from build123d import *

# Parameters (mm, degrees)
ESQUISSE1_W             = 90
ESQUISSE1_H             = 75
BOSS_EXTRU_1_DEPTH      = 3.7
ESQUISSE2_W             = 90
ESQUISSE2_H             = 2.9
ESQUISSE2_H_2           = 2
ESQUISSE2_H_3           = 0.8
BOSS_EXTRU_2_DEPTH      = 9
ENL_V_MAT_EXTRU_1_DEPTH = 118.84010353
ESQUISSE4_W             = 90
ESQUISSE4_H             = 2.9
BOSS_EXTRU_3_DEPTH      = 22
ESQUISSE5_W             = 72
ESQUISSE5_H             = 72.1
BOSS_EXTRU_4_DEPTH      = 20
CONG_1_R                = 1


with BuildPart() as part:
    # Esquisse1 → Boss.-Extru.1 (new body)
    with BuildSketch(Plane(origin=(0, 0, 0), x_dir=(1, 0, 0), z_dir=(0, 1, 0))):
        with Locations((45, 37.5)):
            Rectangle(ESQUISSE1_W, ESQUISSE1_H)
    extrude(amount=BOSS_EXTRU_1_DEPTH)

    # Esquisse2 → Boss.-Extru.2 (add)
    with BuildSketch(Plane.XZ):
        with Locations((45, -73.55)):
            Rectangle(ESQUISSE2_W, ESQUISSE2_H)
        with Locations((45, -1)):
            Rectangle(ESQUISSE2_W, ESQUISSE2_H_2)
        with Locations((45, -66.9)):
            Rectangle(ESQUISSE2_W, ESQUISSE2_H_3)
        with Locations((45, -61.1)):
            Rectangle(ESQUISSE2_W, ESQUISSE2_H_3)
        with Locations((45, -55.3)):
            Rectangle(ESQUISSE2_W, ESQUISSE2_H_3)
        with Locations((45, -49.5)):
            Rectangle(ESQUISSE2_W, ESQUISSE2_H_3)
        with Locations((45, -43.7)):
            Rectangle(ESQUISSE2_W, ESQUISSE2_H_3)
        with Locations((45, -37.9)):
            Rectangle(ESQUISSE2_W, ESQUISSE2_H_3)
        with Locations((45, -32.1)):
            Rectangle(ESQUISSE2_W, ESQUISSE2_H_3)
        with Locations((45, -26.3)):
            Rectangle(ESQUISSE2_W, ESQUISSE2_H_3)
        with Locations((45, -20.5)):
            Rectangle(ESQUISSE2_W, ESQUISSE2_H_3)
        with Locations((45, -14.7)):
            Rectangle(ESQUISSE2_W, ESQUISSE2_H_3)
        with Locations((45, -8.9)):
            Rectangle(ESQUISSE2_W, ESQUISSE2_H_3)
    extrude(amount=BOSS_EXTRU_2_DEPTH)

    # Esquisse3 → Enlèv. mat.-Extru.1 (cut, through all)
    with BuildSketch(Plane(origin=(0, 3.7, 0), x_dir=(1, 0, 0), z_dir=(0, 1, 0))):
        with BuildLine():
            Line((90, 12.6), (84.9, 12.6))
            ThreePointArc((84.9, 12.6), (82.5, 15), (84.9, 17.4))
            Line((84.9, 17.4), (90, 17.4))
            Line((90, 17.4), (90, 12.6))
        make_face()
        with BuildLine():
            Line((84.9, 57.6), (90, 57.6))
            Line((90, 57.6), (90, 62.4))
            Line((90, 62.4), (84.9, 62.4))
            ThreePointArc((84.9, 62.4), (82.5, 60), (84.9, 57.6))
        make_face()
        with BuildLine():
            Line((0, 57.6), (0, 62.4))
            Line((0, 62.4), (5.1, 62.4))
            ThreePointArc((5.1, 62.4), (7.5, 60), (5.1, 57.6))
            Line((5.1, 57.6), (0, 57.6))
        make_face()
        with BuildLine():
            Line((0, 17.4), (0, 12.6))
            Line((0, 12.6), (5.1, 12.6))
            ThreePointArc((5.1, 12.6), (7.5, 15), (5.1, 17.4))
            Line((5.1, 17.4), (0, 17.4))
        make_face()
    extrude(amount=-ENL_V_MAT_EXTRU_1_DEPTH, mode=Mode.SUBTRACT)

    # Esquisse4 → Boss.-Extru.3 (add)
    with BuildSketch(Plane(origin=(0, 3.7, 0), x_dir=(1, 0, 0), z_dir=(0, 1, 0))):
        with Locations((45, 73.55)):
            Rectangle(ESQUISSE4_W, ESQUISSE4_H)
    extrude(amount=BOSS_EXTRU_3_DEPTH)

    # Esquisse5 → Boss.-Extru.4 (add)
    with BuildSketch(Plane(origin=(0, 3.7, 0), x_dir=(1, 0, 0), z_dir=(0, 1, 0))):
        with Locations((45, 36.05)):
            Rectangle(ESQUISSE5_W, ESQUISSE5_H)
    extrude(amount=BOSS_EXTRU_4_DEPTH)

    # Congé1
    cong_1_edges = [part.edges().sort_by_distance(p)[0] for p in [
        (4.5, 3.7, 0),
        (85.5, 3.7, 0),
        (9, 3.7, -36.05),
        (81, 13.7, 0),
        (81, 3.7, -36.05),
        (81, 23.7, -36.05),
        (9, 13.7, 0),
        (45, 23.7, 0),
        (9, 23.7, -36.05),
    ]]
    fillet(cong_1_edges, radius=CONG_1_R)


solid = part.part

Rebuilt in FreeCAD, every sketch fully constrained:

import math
import FreeCAD as App
import Part
import Sketcher
from FreeCAD import Vector
Q = App.Units.Quantity


def edges_at(feature, points):
    """Names of the edges that pass closest to the given points."""
    edges = feature.Shape.Edges
    near = lambda p: min(range(len(edges)), key=lambda i: edges[i].distToShape(Part.Vertex(*p))[0])
    return sorted({f"Edge{near(p) + 1}" for p in points})


def add_polygon(sketch, points):
    """Adds a closed chain of lines whose ends are joined by coincident constraints."""
    first, n = sketch.GeometryCount, len(points)
    for a, b in zip(points, points[1:] + points[:1]):
        sketch.addGeometry(Part.LineSegment(App.Vector(*a, 0), App.Vector(*b, 0)), False)
    for i in range(n):
        sketch.addConstraint(Sketcher.Constraint("Coincident", first + i, 2, first + (i + 1) % n, 1))

doc = App.newDocument("Part")
body = doc.addObject("PartDesign::Body", "Body")

sketch1 = body.newObject("Sketcher::SketchObject", "Sketch")
sketch1.AttachmentSupport = (doc.getObject("XZ_Plane"), [""])
sketch1.MapMode = "FlatFace"
add_polygon(sketch1, [(0, -75), (0, 0), (90, 0), (90, -75)])
sketch1.addConstraint(Sketcher.Constraint("Vertical", 0))
sketch1.addConstraint(Sketcher.Constraint("Horizontal", 1))
sketch1.addConstraint(Sketcher.Constraint("Vertical", 2))
sketch1.addConstraint(Sketcher.Constraint("Horizontal", 3))
sketch1.addConstraint(Sketcher.Constraint("Coincident", 0, 2, -1, 1))
sketch1.addConstraint(Sketcher.Constraint("DistanceX", 1, 1, 1, 2, Q("90 mm")))
sketch1.addConstraint(Sketcher.Constraint("DistanceY", 0, 1, 0, 2, Q("75 mm")))
pad1 = body.newObject("PartDesign::Pad", "Pad")
pad1.Profile = sketch1
pad1.Length = 3.7
pad1.Reversed = True

sketch2 = body.newObject("Sketcher::SketchObject", "Sketch001")
sketch2.AttachmentSupport = (doc.getObject("XZ_Plane"), [""])
sketch2.MapMode = "FlatFace"
add_polygon(sketch2, [(0, -72.1), (0, -75), (90, -75), (90, -72.1)])
add_polygon(sketch2, [(0, 0), (0, -2), (90, -2), (90, 0)])
add_polygon(sketch2, [(0, -66.5), (0, -67.3), (90, -67.3), (90, -66.5)])
add_polygon(sketch2, [(0, -60.7), (0, -61.5), (90, -61.5), (90, -60.7)])
add_polygon(sketch2, [(0, -54.9), (0, -55.7), (90, -55.7), (90, -54.9)])
add_polygon(sketch2, [(0, -49.1), (0, -49.9), (90, -49.9), (90, -49.1)])
add_polygon(sketch2, [(0, -43.3), (0, -44.1), (90, -44.1), (90, -43.3)])
add_polygon(sketch2, [(0, -37.5), (0, -38.3), (90, -38.3), (90, -37.5)])
add_polygon(sketch2, [(0, -31.7), (0, -32.5), (90, -32.5), (90, -31.7)])
add_polygon(sketch2, [(0, -25.9), (0, -26.7), (90, -26.7), (90, -25.9)])
add_polygon(sketch2, [(0, -20.1), (0, -20.9), (90, -20.9), (90, -20.1)])
add_polygon(sketch2, [(0, -14.3), (0, -15.1), (90, -15.1), (90, -14.3)])
add_polygon(sketch2, [(0, -8.5), (0, -9.3), (90, -9.3), (90, -8.5)])
sketch2.addConstraint(Sketcher.Constraint("Vertical", 0))
sketch2.addConstraint(Sketcher.Constraint("Horizontal", 1))
sketch2.addConstraint(Sketcher.Constraint("Vertical", 2))
sketch2.addConstraint(Sketcher.Constraint("Horizontal", 3))
sketch2.addConstraint(Sketcher.Constraint("Vertical", 4))
sketch2.addConstraint(Sketcher.Constraint("Horizontal", 5))
sketch2.addConstraint(Sketcher.Constraint("Vertical", 6))
sketch2.addConstraint(Sketcher.Constraint("Horizontal", 7))
sketch2.addConstraint(Sketcher.Constraint("Vertical", 8))
sketch2.addConstraint(Sketcher.Constraint("Horizontal", 9))
sketch2.addConstraint(Sketcher.Constraint("Vertical", 10))
sketch2.addConstraint(Sketcher.Constraint("Horizontal", 11))
sketch2.addConstraint(Sketcher.Constraint("Vertical", 12))
sketch2.addConstraint(Sketcher.Constraint("Horizontal", 13))
sketch2.addConstraint(Sketcher.Constraint("Vertical", 14))
sketch2.addConstraint(Sketcher.Constraint("Horizontal", 15))
sketch2.addConstraint(Sketcher.Constraint("Vertical", 16))
sketch2.addConstraint(Sketcher.Constraint("Horizontal", 17))
sketch2.addConstraint(Sketcher.Constraint("Vertical", 18))
sketch2.addConstraint(Sketcher.Constraint("Horizontal", 19))
sketch2.addConstraint(Sketcher.Constraint("Vertical", 20))
sketch2.addConstraint(Sketcher.Constraint("Horizontal", 21))
sketch2.addConstraint(Sketcher.Constraint("Vertical", 22))
sketch2.addConstraint(Sketcher.Constraint("Horizontal", 23))
sketch2.addConstraint(Sketcher.Constraint("Vertical", 24))
sketch2.addConstraint(Sketcher.Constraint("Horizontal", 25))
sketch2.addConstraint(Sketcher.Constraint("Vertical", 26))
sketch2.addConstraint(Sketcher.Constraint("Horizontal", 27))
sketch2.addConstraint(Sketcher.Constraint("Vertical", 28))
sketch2.addConstraint(Sketcher.Constraint("Horizontal", 29))
sketch2.addConstraint(Sketcher.Constraint("Vertical", 30))
sketch2.addConstraint(Sketcher.Constraint("Horizontal", 31))
sketch2.addConstraint(Sketcher.Constraint("Vertical", 32))
sketch2.addConstraint(Sketcher.Constraint("Horizontal", 33))
sketch2.addConstraint(Sketcher.Constraint("Vertical", 34))
sketch2.addConstraint(Sketcher.Constraint("Horizontal", 35))
sketch2.addConstraint(Sketcher.Constraint("Vertical", 36))
sketch2.addConstraint(Sketcher.Constraint("Horizontal", 37))
sketch2.addConstraint(Sketcher.Constraint("Vertical", 38))
sketch2.addConstraint(Sketcher.Constraint("Horizontal", 39))
sketch2.addConstraint(Sketcher.Constraint("Vertical", 40))
sketch2.addConstraint(Sketcher.Constraint("Horizontal", 41))
sketch2.addConstraint(Sketcher.Constraint("Vertical", 42))
sketch2.addConstraint(Sketcher.Constraint("Horizontal", 43))
sketch2.addConstraint(Sketcher.Constraint("Vertical", 44))
sketch2.addConstraint(Sketcher.Constraint("Horizontal", 45))
sketch2.addConstraint(Sketcher.Constraint("Vertical", 46))
sketch2.addConstraint(Sketcher.Constraint("Horizontal", 47))
sketch2.addConstraint(Sketcher.Constraint("Vertical", 48))
sketch2.addConstraint(Sketcher.Constraint("Horizontal", 49))
sketch2.addConstraint(Sketcher.Constraint("Vertical", 50))
sketch2.addConstraint(Sketcher.Constraint("Horizontal", 51))
sketch2.addConstraint(Sketcher.Constraint("Coincident", 7, 2, -1, 1))
sketch2.addConstraint(Sketcher.Constraint("PointOnObject", 0, 2, -2))
sketch2.addConstraint(Sketcher.Constraint("PointOnObject", 8, 2, -2))
sketch2.addConstraint(Sketcher.Constraint("PointOnObject", 12, 2, -2))
sketch2.addConstraint(Sketcher.Constraint("PointOnObject", 16, 2, -2))
sketch2.addConstraint(Sketcher.Constraint("PointOnObject", 20, 2, -2))
sketch2.addConstraint(Sketcher.Constraint("PointOnObject", 24, 2, -2))
sketch2.addConstraint(Sketcher.Constraint("PointOnObject", 28, 2, -2))
sketch2.addConstraint(Sketcher.Constraint("PointOnObject", 32, 2, -2))
sketch2.addConstraint(Sketcher.Constraint("PointOnObject", 36, 2, -2))
sketch2.addConstraint(Sketcher.Constraint("PointOnObject", 40, 2, -2))
sketch2.addConstraint(Sketcher.Constraint("PointOnObject", 44, 2, -2))
sketch2.addConstraint(Sketcher.Constraint("PointOnObject", 48, 2, -2))
sketch2.addConstraint(Sketcher.Constraint("Vertical", 2, 2, 5, 2))
sketch2.addConstraint(Sketcher.Constraint("Vertical", 6, 2, 9, 2))
sketch2.addConstraint(Sketcher.Constraint("Vertical", 10, 2, 13, 2))
sketch2.addConstraint(Sketcher.Constraint("Vertical", 14, 2, 17, 2))
sketch2.addConstraint(Sketcher.Constraint("Vertical", 18, 2, 21, 2))
sketch2.addConstraint(Sketcher.Constraint("Vertical", 22, 2, 25, 2))
sketch2.addConstraint(Sketcher.Constraint("Vertical", 26, 2, 29, 2))
sketch2.addConstraint(Sketcher.Constraint("Vertical", 30, 2, 33, 2))
sketch2.addConstraint(Sketcher.Constraint("Vertical", 34, 2, 37, 2))
sketch2.addConstraint(Sketcher.Constraint("Vertical", 38, 2, 41, 2))
sketch2.addConstraint(Sketcher.Constraint("Vertical", 42, 2, 45, 2))
sketch2.addConstraint(Sketcher.Constraint("Vertical", 46, 2, 49, 2))
sketch2.addConstraint(Sketcher.Constraint("Equal", 10, 12))
sketch2.addConstraint(Sketcher.Constraint("Equal", 14, 16))
sketch2.addConstraint(Sketcher.Constraint("Equal", 18, 20))
sketch2.addConstraint(Sketcher.Constraint("Equal", 22, 24))
sketch2.addConstraint(Sketcher.Constraint("Equal", 26, 28))
sketch2.addConstraint(Sketcher.Constraint("Equal", 30, 32))
sketch2.addConstraint(Sketcher.Constraint("Equal", 34, 36))
sketch2.addConstraint(Sketcher.Constraint("Equal", 38, 40))
sketch2.addConstraint(Sketcher.Constraint("Equal", 42, 44))
sketch2.addConstraint(Sketcher.Constraint("Equal", 46, 48))
sketch2.addConstraint(Sketcher.Constraint("DistanceX", 1, 1, 1, 2, Q("90 mm")))
sketch2.addConstraint(Sketcher.Constraint("DistanceY", 4, 2, 4, 1, Q("2 mm")))
sketch2.addConstraint(Sketcher.Constraint("DistanceY", 0, 2, 0, 1, Q("2.9 mm")))
sketch2.addConstraint(Sketcher.Constraint("DistanceY", 8, 2, 8, 1, Q("0.8 mm")))
sketch2.addConstraint(Sketcher.Constraint("DistanceY", 0, 2, -1, 1, Q("75 mm")))
sketch2.addConstraint(Sketcher.Constraint("DistanceY", 11, 2, 12, 2, Q("5 mm")))
sketch2.addConstraint(Sketcher.Constraint("DistanceY", 15, 2, 16, 2, Q("5 mm")))
sketch2.addConstraint(Sketcher.Constraint("DistanceY", 19, 2, 20, 2, Q("5 mm")))
sketch2.addConstraint(Sketcher.Constraint("DistanceY", 23, 2, 24, 2, Q("5 mm")))
sketch2.addConstraint(Sketcher.Constraint("DistanceY", 27, 2, 28, 2, Q("5 mm")))
sketch2.addConstraint(Sketcher.Constraint("DistanceY", 31, 2, 32, 2, Q("5 mm")))
sketch2.addConstraint(Sketcher.Constraint("DistanceY", 35, 2, 36, 2, Q("5 mm")))
sketch2.addConstraint(Sketcher.Constraint("DistanceY", 39, 2, 40, 2, Q("5 mm")))
sketch2.addConstraint(Sketcher.Constraint("DistanceY", 43, 2, 44, 2, Q("5 mm")))
sketch2.addConstraint(Sketcher.Constraint("DistanceY", 47, 2, 48, 2, Q("5 mm")))
sketch2.addConstraint(Sketcher.Constraint("DistanceY", 8, 2, -1, 1, Q("67.3 mm")))
pad2 = body.newObject("PartDesign::Pad", "Pad001")
pad2.Profile = sketch2
pad2.Length = 9

sketch3 = body.newObject("Sketcher::SketchObject", "Sketch002")
sketch3.AttachmentSupport = (doc.getObject("XZ_Plane"), [""])
sketch3.MapMode = "FlatFace"
sketch3.AttachmentOffset = App.Placement(Vector(0, 0, -3.7), App.Rotation())
sketch3.addGeometry(Part.LineSegment(Vector(84.9, -12.6, 0), Vector(90, -12.6, 0)), False)
sketch3.addGeometry(Part.LineSegment(Vector(90, -12.6, 0), Vector(90, -17.4, 0)), False)
sketch3.addGeometry(Part.LineSegment(Vector(90, -17.4, 0), Vector(84.9, -17.4, 0)), False)
sketch3.addGeometry(Part.ArcOfCircle(Part.Circle(Vector(84.9, -15, 0), Vector(0, 0, 1), 2.4), math.radians(90), math.radians(270)), False)
sketch3.addGeometry(Part.LineSegment(Vector(84.9, -57.6, 0), Vector(90, -57.6, 0)), False)
sketch3.addGeometry(Part.LineSegment(Vector(90, -57.6, 0), Vector(90, -62.4, 0)), False)
sketch3.addGeometry(Part.LineSegment(Vector(90, -62.4, 0), Vector(84.9, -62.4, 0)), False)
sketch3.addGeometry(Part.ArcOfCircle(Part.Circle(Vector(84.9, -60, 0), Vector(0, 0, 1), 2.4), math.radians(90), math.radians(270)), False)
sketch3.addGeometry(Part.LineSegment(Vector(0, -62.4, 0), Vector(0, -57.6, 0)), False)
sketch3.addGeometry(Part.LineSegment(Vector(0, -57.6, 0), Vector(5.1, -57.6, 0)), False)
sketch3.addGeometry(Part.ArcOfCircle(Part.Circle(Vector(5.1, -60, 0), Vector(0, 0, 1), 2.4), math.radians(-90), math.radians(90)), False)
sketch3.addGeometry(Part.LineSegment(Vector(5.1, -62.4, 0), Vector(0, -62.4, 0)), False)
sketch3.addGeometry(Part.LineSegment(Vector(0, -17.4, 0), Vector(0, -12.6, 0)), False)
sketch3.addGeometry(Part.LineSegment(Vector(0, -12.6, 0), Vector(5.1, -12.6, 0)), False)
sketch3.addGeometry(Part.ArcOfCircle(Part.Circle(Vector(5.1, -15, 0), Vector(0, 0, 1), 2.4), math.radians(-90), math.radians(90)), False)
sketch3.addGeometry(Part.LineSegment(Vector(5.1, -17.4, 0), Vector(0, -17.4, 0)), False)
sketch3.addConstraint(Sketcher.Constraint("Coincident", 0, 2, 1, 1))
sketch3.addConstraint(Sketcher.Constraint("Coincident", 1, 2, 2, 1))
sketch3.addConstraint(Sketcher.Constraint("Tangent", 2, 2, 3, 2))
sketch3.addConstraint(Sketcher.Constraint("Tangent", 3, 1, 0, 1))
sketch3.addConstraint(Sketcher.Constraint("Coincident", 4, 2, 5, 1))
sketch3.addConstraint(Sketcher.Constraint("Coincident", 5, 2, 6, 1))
sketch3.addConstraint(Sketcher.Constraint("Tangent", 6, 2, 7, 2))
sketch3.addConstraint(Sketcher.Constraint("Tangent", 7, 1, 4, 1))
sketch3.addConstraint(Sketcher.Constraint("Coincident", 8, 2, 9, 1))
sketch3.addConstraint(Sketcher.Constraint("Tangent", 9, 2, 10, 2))
sketch3.addConstraint(Sketcher.Constraint("Tangent", 10, 1, 11, 1))
sketch3.addConstraint(Sketcher.Constraint("Coincident", 11, 2, 8, 1))
sketch3.addConstraint(Sketcher.Constraint("Coincident", 12, 2, 13, 1))
sketch3.addConstraint(Sketcher.Constraint("Tangent", 13, 2, 14, 2))
sketch3.addConstraint(Sketcher.Constraint("Tangent", 14, 1, 15, 1))
sketch3.addConstraint(Sketcher.Constraint("Coincident", 15, 2, 12, 1))
sketch3.addConstraint(Sketcher.Constraint("Horizontal", 0))
sketch3.addConstraint(Sketcher.Constraint("Vertical", 1))
sketch3.addConstraint(Sketcher.Constraint("Horizontal", 2))
sketch3.addConstraint(Sketcher.Constraint("Horizontal", 4))
sketch3.addConstraint(Sketcher.Constraint("Vertical", 5))
sketch3.addConstraint(Sketcher.Constraint("Horizontal", 6))
sketch3.addConstraint(Sketcher.Constraint("Vertical", 8))
sketch3.addConstraint(Sketcher.Constraint("Horizontal", 9))
sketch3.addConstraint(Sketcher.Constraint("Horizontal", 11))
sketch3.addConstraint(Sketcher.Constraint("Vertical", 12))
sketch3.addConstraint(Sketcher.Constraint("Horizontal", 13))
sketch3.addConstraint(Sketcher.Constraint("Horizontal", 15))
sketch3.addConstraint(Sketcher.Constraint("Equal", 3, 7))
sketch3.addConstraint(Sketcher.Constraint("Equal", 7, 10))
sketch3.addConstraint(Sketcher.Constraint("Equal", 10, 14))
sketch3.addConstraint(Sketcher.Constraint("PointOnObject", 8, 2, -2))
sketch3.addConstraint(Sketcher.Constraint("PointOnObject", 12, 2, -2))
sketch3.addConstraint(Sketcher.Constraint("Horizontal", 7, 3, 10, 3))
sketch3.addConstraint(Sketcher.Constraint("Horizontal", 3, 3, 14, 3))
sketch3.addConstraint(Sketcher.Constraint("Vertical", 3, 3, 7, 3))
sketch3.addConstraint(Sketcher.Constraint("Vertical", 10, 3, 14, 3))
sketch3.addConstraint(Sketcher.Constraint("Vertical", 1, 2, 4, 2))
sketch3.addConstraint(Sketcher.Constraint("Equal", 6, 9))
sketch3.addConstraint(Sketcher.Constraint("Radius", 3, Q("2.4 mm")))
sketch3.addConstraint(Sketcher.Constraint("DistanceX", 0, 1, 0, 2, Q("5.1 mm")))
sketch3.addConstraint(Sketcher.Constraint("DistanceY", 3, 3, -1, 1, Q("15 mm")))
sketch3.addConstraint(Sketcher.Constraint("DistanceY", 7, 3, -1, 1, Q("60 mm")))
sketch3.addConstraint(Sketcher.Constraint("DistanceX", -1, 1, 0, 2, Q("90 mm")))
pocket1 = body.newObject("PartDesign::Pocket", "Pocket")
pocket1.Profile = sketch3
pocket1.Type = "ThroughAll"
pocket1.Reversed = True

sketch4 = body.newObject("Sketcher::SketchObject", "Sketch003")
sketch4.AttachmentSupport = (doc.getObject("XZ_Plane"), [""])
sketch4.MapMode = "FlatFace"
sketch4.AttachmentOffset = App.Placement(Vector(0, 0, -3.7), App.Rotation())
add_polygon(sketch4, [(0, -75), (0, -72.1), (90, -72.1), (90, -75)])
sketch4.addConstraint(Sketcher.Constraint("Vertical", 0))
sketch4.addConstraint(Sketcher.Constraint("Horizontal", 1))
sketch4.addConstraint(Sketcher.Constraint("Vertical", 2))
sketch4.addConstraint(Sketcher.Constraint("Horizontal", 3))
sketch4.addConstraint(Sketcher.Constraint("PointOnObject", 0, 2, -2))
sketch4.addConstraint(Sketcher.Constraint("DistanceX", 1, 1, 1, 2, Q("90 mm")))
sketch4.addConstraint(Sketcher.Constraint("DistanceY", 0, 1, 0, 2, Q("2.9 mm")))
sketch4.addConstraint(Sketcher.Constraint("DistanceY", 2, 2, -1, 1, Q("75 mm")))
pad3 = body.newObject("PartDesign::Pad", "Pad002")
pad3.Profile = sketch4
pad3.Length = 22
pad3.Reversed = True

sketch5 = body.newObject("Sketcher::SketchObject", "Sketch004")
sketch5.AttachmentSupport = (doc.getObject("XZ_Plane"), [""])
sketch5.MapMode = "FlatFace"
sketch5.AttachmentOffset = App.Placement(Vector(0, 0, -3.7), App.Rotation())
add_polygon(sketch5, [(9, -72.1), (9, 0), (81, 0), (81, -72.1)])
sketch5.addConstraint(Sketcher.Constraint("Vertical", 0))
sketch5.addConstraint(Sketcher.Constraint("Horizontal", 1))
sketch5.addConstraint(Sketcher.Constraint("Vertical", 2))
sketch5.addConstraint(Sketcher.Constraint("Horizontal", 3))
sketch5.addConstraint(Sketcher.Constraint("PointOnObject", 0, 2, -1))
sketch5.addConstraint(Sketcher.Constraint("DistanceX", 1, 1, 1, 2, Q("72 mm")))
sketch5.addConstraint(Sketcher.Constraint("DistanceY", 0, 1, 0, 2, Q("72.1 mm")))
sketch5.addConstraint(Sketcher.Constraint("DistanceX", -1, 1, 0, 2, Q("9 mm")))
pad4 = body.newObject("PartDesign::Pad", "Pad003")
pad4.Profile = sketch5
pad4.Length = 20
pad4.Reversed = True
doc.recompute()

fillet = body.newObject("PartDesign::Fillet", "Fillet")
fillet.Base = (pad4, edges_at(pad4, [
    (4.5, 3.7, 0),
    (85.5, 3.7, 0),
    (9, 3.7, -36.05),
    (81, 13.7, 0),
    (81, 3.7, -36.05),
    (81, 23.7, -36.05),
    (9, 13.7, 0),
    (45, 23.7, 0),
    (9, 23.7, -36.05),
]))
fillet.Radius = 1

doc.recompute()
